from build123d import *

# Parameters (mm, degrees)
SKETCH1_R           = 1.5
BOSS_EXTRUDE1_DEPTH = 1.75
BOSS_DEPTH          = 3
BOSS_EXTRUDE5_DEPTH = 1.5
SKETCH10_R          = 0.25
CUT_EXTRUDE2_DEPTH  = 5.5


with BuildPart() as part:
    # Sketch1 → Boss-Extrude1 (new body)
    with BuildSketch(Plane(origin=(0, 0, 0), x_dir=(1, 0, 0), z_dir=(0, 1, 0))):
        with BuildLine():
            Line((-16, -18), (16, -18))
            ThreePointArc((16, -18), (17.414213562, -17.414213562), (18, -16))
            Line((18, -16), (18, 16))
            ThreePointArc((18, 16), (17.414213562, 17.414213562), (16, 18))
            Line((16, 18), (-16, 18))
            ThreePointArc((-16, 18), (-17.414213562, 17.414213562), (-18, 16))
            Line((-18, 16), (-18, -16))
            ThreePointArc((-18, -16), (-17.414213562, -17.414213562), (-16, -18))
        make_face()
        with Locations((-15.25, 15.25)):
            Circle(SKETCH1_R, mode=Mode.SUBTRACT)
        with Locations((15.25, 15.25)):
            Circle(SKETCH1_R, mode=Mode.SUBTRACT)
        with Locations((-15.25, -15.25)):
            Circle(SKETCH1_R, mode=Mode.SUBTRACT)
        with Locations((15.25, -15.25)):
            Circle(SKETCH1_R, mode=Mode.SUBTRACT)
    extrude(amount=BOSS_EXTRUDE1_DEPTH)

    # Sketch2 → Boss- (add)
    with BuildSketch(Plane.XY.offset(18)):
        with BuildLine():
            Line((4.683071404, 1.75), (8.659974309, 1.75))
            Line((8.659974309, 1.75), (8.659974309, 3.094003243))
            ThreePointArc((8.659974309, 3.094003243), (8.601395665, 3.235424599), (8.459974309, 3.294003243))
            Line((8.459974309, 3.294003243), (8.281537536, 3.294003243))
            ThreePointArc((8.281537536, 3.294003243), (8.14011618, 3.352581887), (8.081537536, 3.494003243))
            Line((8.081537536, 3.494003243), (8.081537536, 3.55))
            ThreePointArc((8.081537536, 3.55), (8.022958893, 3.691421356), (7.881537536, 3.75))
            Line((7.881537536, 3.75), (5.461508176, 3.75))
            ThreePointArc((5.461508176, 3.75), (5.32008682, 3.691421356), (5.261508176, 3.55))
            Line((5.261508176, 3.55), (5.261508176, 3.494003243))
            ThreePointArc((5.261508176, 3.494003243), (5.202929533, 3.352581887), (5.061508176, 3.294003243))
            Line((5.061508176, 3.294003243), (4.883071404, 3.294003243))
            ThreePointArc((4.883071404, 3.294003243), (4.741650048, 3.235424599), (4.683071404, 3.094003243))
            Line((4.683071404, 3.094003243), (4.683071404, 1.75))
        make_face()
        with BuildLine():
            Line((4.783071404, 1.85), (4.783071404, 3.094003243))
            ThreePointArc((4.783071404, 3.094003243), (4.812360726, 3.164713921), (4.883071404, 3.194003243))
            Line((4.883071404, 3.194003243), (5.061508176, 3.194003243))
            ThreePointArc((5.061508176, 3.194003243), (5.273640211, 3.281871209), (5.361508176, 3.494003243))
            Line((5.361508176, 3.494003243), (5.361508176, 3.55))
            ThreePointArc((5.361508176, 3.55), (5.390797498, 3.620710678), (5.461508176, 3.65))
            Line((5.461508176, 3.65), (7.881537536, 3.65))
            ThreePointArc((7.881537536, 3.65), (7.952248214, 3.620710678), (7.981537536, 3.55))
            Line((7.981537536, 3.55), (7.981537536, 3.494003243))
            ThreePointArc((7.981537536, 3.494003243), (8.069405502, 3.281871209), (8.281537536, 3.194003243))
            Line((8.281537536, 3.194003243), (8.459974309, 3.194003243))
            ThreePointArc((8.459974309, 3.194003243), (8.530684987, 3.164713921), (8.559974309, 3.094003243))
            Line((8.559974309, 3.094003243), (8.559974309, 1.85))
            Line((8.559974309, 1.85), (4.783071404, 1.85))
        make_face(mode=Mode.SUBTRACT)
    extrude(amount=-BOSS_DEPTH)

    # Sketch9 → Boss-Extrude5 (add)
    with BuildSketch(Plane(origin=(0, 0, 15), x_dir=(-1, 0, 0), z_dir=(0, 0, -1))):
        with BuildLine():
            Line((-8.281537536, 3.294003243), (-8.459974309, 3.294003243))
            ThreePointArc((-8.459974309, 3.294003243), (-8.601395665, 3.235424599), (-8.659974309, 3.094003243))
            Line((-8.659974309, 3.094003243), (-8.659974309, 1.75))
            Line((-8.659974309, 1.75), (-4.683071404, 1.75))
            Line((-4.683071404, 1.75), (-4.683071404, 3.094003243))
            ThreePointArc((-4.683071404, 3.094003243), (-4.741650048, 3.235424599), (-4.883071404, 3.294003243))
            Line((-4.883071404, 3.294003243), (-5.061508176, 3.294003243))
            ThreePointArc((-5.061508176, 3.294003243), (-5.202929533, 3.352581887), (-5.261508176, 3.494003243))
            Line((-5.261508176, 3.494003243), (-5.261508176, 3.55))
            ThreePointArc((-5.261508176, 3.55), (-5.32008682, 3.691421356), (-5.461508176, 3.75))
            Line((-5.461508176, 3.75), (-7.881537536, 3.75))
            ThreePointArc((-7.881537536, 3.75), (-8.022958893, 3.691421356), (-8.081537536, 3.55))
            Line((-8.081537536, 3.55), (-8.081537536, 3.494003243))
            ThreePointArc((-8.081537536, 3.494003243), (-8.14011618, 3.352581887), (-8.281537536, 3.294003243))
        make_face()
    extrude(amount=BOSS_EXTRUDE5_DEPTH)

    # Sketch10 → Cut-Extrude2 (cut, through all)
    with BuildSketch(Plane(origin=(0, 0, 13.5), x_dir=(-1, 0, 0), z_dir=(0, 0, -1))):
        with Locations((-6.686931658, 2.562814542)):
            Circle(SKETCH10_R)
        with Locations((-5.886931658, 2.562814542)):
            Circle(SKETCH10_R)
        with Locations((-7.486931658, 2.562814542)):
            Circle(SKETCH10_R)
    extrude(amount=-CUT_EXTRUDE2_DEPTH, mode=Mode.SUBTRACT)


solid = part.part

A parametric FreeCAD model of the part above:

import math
import FreeCAD as App
import Part
import Sketcher
from FreeCAD import Vector
Q = App.Units.Quantity

doc = App.newDocument("Part")
body = doc.addObject("PartDesign::Body", "Body")

# Sketch on XZ plane
sketch1 = body.newObject("Sketcher::SketchObject", "Sketch")
sketch1.AttachmentSupport = (doc.getObject("XZ_Plane"), [""])
sketch1.MapMode = "FlatFace"
sketch1.addGeometry([
    Part.LineSegment(Vector(-16, 18, 0), Vector(16, 18, 0)),  # 0
    Part.ArcOfCircle(Part.Circle(Vector(16, 16, 0), Vector(0, 0, 1), 2), math.radians(0), math.radians(90)),  # 1
    Part.LineSegment(Vector(18, 16, 0), Vector(18, -16, 0)),  # 2
    Part.ArcOfCircle(Part.Circle(Vector(16, -16, 0), Vector(0, 0, 1), 2), math.radians(-90), math.radians(0)),  # 3
    Part.LineSegment(Vector(16, -18, 0), Vector(-16, -18, 0)),  # 4
    Part.ArcOfCircle(Part.Circle(Vector(-16, -16, 0), Vector(0, 0, 1), 2), math.radians(-180), math.radians(-90)),  # 5
    Part.LineSegment(Vector(-18, -16, 0), Vector(-18, 16, 0)),  # 6
    Part.ArcOfCircle(Part.Circle(Vector(-16, 16, 0), Vector(0, 0, 1), 2), math.radians(90), math.radians(180)),  # 7
    Part.Circle(Vector(-15.25, 15.25, 0), Vector(0, 0, 1), 1.5),  # 8
    Part.Circle(Vector(15.25, 15.25, 0), Vector(0, 0, 1), 1.5),  # 9
    Part.Circle(Vector(-15.25, -15.25, 0), Vector(0, 0, 1), 1.5),  # 10
    Part.Circle(Vector(15.25, -15.25, 0), Vector(0, 0, 1), 1.5),  # 11
], False)
sketch1.addConstraint([
    Sketcher.Constraint("Tangent", 0, 2, 1, 2),
    Sketcher.Constraint("Tangent", 1, 1, 2, 1),
    Sketcher.Constraint("Tangent", 2, 2, 3, 2),
    Sketcher.Constraint("Tangent", 3, 1, 4, 1),
    Sketcher.Constraint("Tangent", 4, 2, 5, 2),
    Sketcher.Constraint("Tangent", 5, 1, 6, 1),
    Sketcher.Constraint("Tangent", 6, 2, 7, 2),
    Sketcher.Constraint("Tangent", 7, 1, 0, 1),
    Sketcher.Constraint("Horizontal", 0),
    Sketcher.Constraint("Vertical", 2),
    Sketcher.Constraint("Horizontal", 4),
    Sketcher.Constraint("Vertical", 6),
    Sketcher.Constraint("Equal", 1, 3),
    Sketcher.Constraint("Equal", 3, 5),
    Sketcher.Constraint("Equal", 5, 7),
    Sketcher.Constraint("Equal", 8, 9),
    Sketcher.Constraint("Equal", 9, 10),
    Sketcher.Constraint("Equal", 10, 11),
    Sketcher.Constraint("Symmetric", 1, 3, 5, 3, -1, 1),
    Sketcher.Constraint("Symmetric", 9, 3, 10, 3, -1, 1),
    Sketcher.Constraint("Symmetric", 8, 3, 11, 3, -1, 1),
    Sketcher.Constraint("Symmetric", 8, 3, 9, 3, -2),
    Sketcher.Constraint("Equal", 4, 2),
    Sketcher.Constraint("Diameter", 8, Q("3 mm")),
    Sketcher.Constraint("Radius", 1, Q("2 mm")),
    Sketcher.Constraint("DistanceX", 0, 1, 0, 2, Q("32 mm")),
    Sketcher.Constraint("DistanceX", 8, 3, 9, 3, Q("30.5 mm")),
    Sketcher.Constraint("DistanceY", 10, 3, 8, 3, Q("30.5 mm")),
])
pad1 = body.newObject("PartDesign::Pad", "Pad")
pad1.Profile = sketch1
pad1.Length = 1.75
pad1.Reversed = True

# Sketch on XY plane
sketch2 = body.newObject("Sketcher::SketchObject", "Sketch001")
sketch2.AttachmentSupport = (doc.getObject("XY_Plane"), [""])
sketch2.MapMode = "FlatFace"
sketch2.AttachmentOffset = App.Placement(Vector(0, 0, 18), App.Rotation())
sketch2.addGeometry([
    Part.LineSegment(Vector(4.683071, 1.75, 0), Vector(8.659974, 1.75, 0)),  # 0
    Part.LineSegment(Vector(8.659974, 1.75, 0), Vector(8.659974, 3.094003, 0)),  # 1
    Part.ArcOfCircle(Part.Circle(Vector(8.459974, 3.094003, 0), Vector(0, 0, 1), 0.2), math.radians(0), math.radians(90)),  # 2
    Part.LineSegment(Vector(8.459974, 3.294003, 0), Vector(8.281538, 3.294003, 0)),  # 3
    Part.ArcOfCircle(Part.Circle(Vector(8.281538, 3.494003, 0), Vector(0, 0, 1), 0.2), math.radians(-180), math.radians(-90)),  # 4
    Part.LineSegment(Vector(8.081538, 3.494003, 0), Vector(8.081538, 3.55, 0)),  # 5
    Part.ArcOfCircle(Part.Circle(Vector(7.881538, 3.55, 0), Vector(0, 0, 1), 0.2), math.radians(0), math.radians(90)),  # 6
    Part.LineSegment(Vector(7.881538, 3.75, 0), Vector(5.461508, 3.75, 0)),  # 7
    Part.ArcOfCircle(Part.Circle(Vector(5.461508, 3.55, 0), Vector(0, 0, 1), 0.2), math.radians(90), math.radians(180)),  # 8
    Part.LineSegment(Vector(5.261508, 3.55, 0), Vector(5.261508, 3.494003, 0)),  # 9
    Part.ArcOfCircle(Part.Circle(Vector(5.061508, 3.494003, 0), Vector(0, 0, 1), 0.2), math.radians(-90), math.radians(0)),  # 10
    Part.LineSegment(Vector(5.061508, 3.294003, 0), Vector(4.883071, 3.294003, 0)),  # 11
    Part.ArcOfCircle(Part.Circle(Vector(4.883071, 3.094003, 0), Vector(0, 0, 1), 0.2), math.radians(90), math.radians(180)),  # 12
    Part.LineSegment(Vector(4.683071, 3.094003, 0), Vector(4.683071, 1.75, 0)),  # 13
    Part.LineSegment(Vector(8.559974, 1.85, 0), Vector(4.783071, 1.85, 0)),  # 14
    Part.LineSegment(Vector(4.783071, 1.85, 0), Vector(4.783071, 3.094003, 0)),  # 15
    Part.ArcOfCircle(Part.Circle(Vector(4.883071, 3.094003, 0), Vector(0, 0, 1), 0.1), math.radians(90), math.radians(180)),  # 16
    Part.LineSegment(Vector(4.883071, 3.194003, 0), Vector(5.061508, 3.194003, 0)),  # 17
    Part.ArcOfCircle(Part.Circle(Vector(5.061508, 3.494003, 0), Vector(0, 0, 1), 0.3), math.radians(-90), math.radians(0)),  # 18
    Part.LineSegment(Vector(5.361508, 3.494003, 0), Vector(5.361508, 3.55, 0)),  # 19
    Part.ArcOfCircle(Part.Circle(Vector(5.461508, 3.55, 0), Vector(0, 0, 1), 0.1), math.radians(90), math.radians(180)),  # 20
    Part.LineSegment(Vector(5.461508, 3.65, 0), Vector(7.881538, 3.65, 0)),  # 21
    Part.ArcOfCircle(Part.Circle(Vector(7.881538, 3.55, 0), Vector(0, 0, 1), 0.1), math.radians(0), math.radians(90)),  # 22
    Part.LineSegment(Vector(7.981538, 3.55, 0), Vector(7.981538, 3.494003, 0)),  # 23
    Part.ArcOfCircle(Part.Circle(Vector(8.281538, 3.494003, 0), Vector(0, 0, 1), 0.3), math.radians(-180), math.radians(-90)),  # 24
    Part.LineSegment(Vector(8.281538, 3.194003, 0), Vector(8.459974, 3.194003, 0)),  # 25
    Part.ArcOfCircle(Part.Circle(Vector(8.459974, 3.094003, 0), Vector(0, 0, 1), 0.1), math.radians(0), math.radians(90)),  # 26
    Part.LineSegment(Vector(8.559974, 3.094003, 0), Vector(8.559974, 1.85, 0)),  # 27
], False)
sketch2.addConstraint([
    Sketcher.Constraint("Coincident", 0, 2, 1, 1),
    Sketcher.Constraint("Tangent", 1, 2, 2, 1),
    Sketcher.Constraint("Tangent", 2, 2, 3, 1),
    Sketcher.Constraint("Tangent", 3, 2, 4, 2),
    Sketcher.Constraint("Tangent", 4, 1, 5, 1),
    Sketcher.Constraint("Tangent", 5, 2, 6, 1),
    Sketcher.Constraint("Tangent", 6, 2, 7, 1),
    Sketcher.Constraint("Tangent", 7, 2, 8, 1),
    Sketcher.Constraint("Tangent", 8, 2, 9, 1),
    Sketcher.Constraint("Tangent", 9, 2, 10, 2),
    Sketcher.Constraint("Tangent", 10, 1, 11, 1),
    Sketcher.Constraint("Tangent", 11, 2, 12, 1),
    Sketcher.Constraint("Tangent", 12, 2, 13, 1),
    Sketcher.Constraint("Coincident", 13, 2, 0, 1),
    Sketcher.Constraint("Coincident", 14, 2, 15, 1),
    Sketcher.Constraint("Tangent", 15, 2, 16, 2),
    Sketcher.Constraint("Tangent", 16, 1, 17, 1),
    Sketcher.Constraint("Tangent", 17, 2, 18, 1),
    Sketcher.Constraint("Tangent", 18, 2, 19, 1),
    Sketcher.Constraint("Tangent", 19, 2, 20, 2),
    Sketcher.Constraint("Tangent", 20, 1, 21, 1),
    Sketcher.Constraint("Tangent", 21, 2, 22, 2),
    Sketcher.Constraint("Tangent", 22, 1, 23, 1),
    Sketcher.Constraint("Tangent", 23, 2, 24, 1),
    Sketcher.Constraint("Tangent", 24, 2, 25, 1),
    Sketcher.Constraint("Tangent", 25, 2, 26, 2),
    Sketcher.Constraint("Tangent", 26, 1, 27, 1),
    Sketcher.Constraint("Coincident", 27, 2, 14, 1),
    Sketcher.Constraint("Horizontal", 0),
    Sketcher.Constraint("Vertical", 1),
    Sketcher.Constraint("Horizontal", 3),
    Sketcher.Constraint("Vertical", 5),
    Sketcher.Constraint("Horizontal", 7),
    Sketcher.Constraint("Vertical", 9),
    Sketcher.Constraint("Horizontal", 11),
    Sketcher.Constraint("Vertical", 13),
    Sketcher.Constraint("Horizontal", 14),
    Sketcher.Constraint("Vertical", 15),
    Sketcher.Constraint("Horizontal", 17),
    Sketcher.Constraint("Vertical", 19),
    Sketcher.Constraint("Horizontal", 21),
    Sketcher.Constraint("Vertical", 23),
    Sketcher.Constraint("Horizontal", 25),
    Sketcher.Constraint("Vertical", 27),
    Sketcher.Constraint("Coincident", 16, 3, 12, 3),
    Sketcher.Constraint("Coincident", 18, 3, 10, 3),
    Sketcher.Constraint("Coincident", 20, 3, 8, 3),
    Sketcher.Constraint("Coincident", 22, 3, 6, 3),
    Sketcher.Constraint("Coincident", 24, 3, 4, 3),
    Sketcher.Constraint("Coincident", 26, 3, 2, 3),
    Sketcher.Constraint("Equal", 2, 4),
    Sketcher.Constraint("Equal", 4, 6),
    Sketcher.Constraint("Equal", 6, 8),
    Sketcher.Constraint("Equal", 8, 10),
    Sketcher.Constraint("Equal", 10, 12),
    Sketcher.Constraint("Horizontal", 4, 3, 10, 3),
    Sketcher.Constraint("Equal", 3, 11),
    Sketcher.Constraint("Radius", 2, Q("0.2 mm")),
    Sketcher.Constraint("Radius", 16, Q("0.1 mm")),
    Sketcher.Constraint("DistanceY", 0, 2, 22, 3, Q("1.8 mm")),
    Sketcher.Constraint("DistanceY", 13, 2, 14, 2, Q("0.1 mm")),
    Sketcher.Constraint("DistanceY", -1, 1, 6, 3, Q("3.55 mm")),
    Sketcher.Constraint("DistanceX", 7, 2, 7, 1, Q("2.420029 mm")),
    Sketcher.Constraint("DistanceX", 0, 1, 0, 2, Q("3.976903 mm")),
    Sketcher.Constraint("DistanceY", 1, 1, 1, 2, Q("1.344003 mm")),
    Sketcher.Constraint("DistanceX", -1, 1, 8, 3, Q("5.461508 mm")),
])
pad2 = body.newObject("PartDesign::Pad", "Pad001")
pad2.Profile = sketch2
pad2.Length = 3
pad2.Reversed = True

# Sketch on XY plane
sketch3 = body.newObject("Sketcher::SketchObject", "Sketch002")
sketch3.AttachmentSupport = (doc.getObject("XY_Plane"), [""])
sketch3.MapMode = "FlatFace"
sketch3.AttachmentOffset = App.Placement(Vector(0, 0, 15), App.Rotation())
sketch3.addGeometry([
    Part.LineSegment(Vector(8.281538, 3.294003, 0), Vector(8.459974, 3.294003, 0)),  # 0
    Part.ArcOfCircle(Part.Circle(Vector(8.459974, 3.094003, 0), Vector(0, 0, 1), 0.2), math.radians(0), math.radians(90)),  # 1
    Part.LineSegment(Vector(8.659974, 3.094003, 0), Vector(8.659974, 1.75, 0)),  # 2
    Part.LineSegment(Vector(8.659974, 1.75, 0), Vector(4.683071, 1.75, 0)),  # 3
    Part.LineSegment(Vector(4.683071, 1.75, 0), Vector(4.683071, 3.094003, 0)),  # 4
    Part.ArcOfCircle(Part.Circle(Vector(4.883071, 3.094003, 0), Vector(0, 0, 1), 0.2), math.radians(90), math.radians(180)),  # 5
    Part.LineSegment(Vector(4.883071, 3.294003, 0), Vector(5.061508, 3.294003, 0)),  # 6
    Part.ArcOfCircle(Part.Circle(Vector(5.061508, 3.494003, 0), Vector(0, 0, 1), 0.2), math.radians(-90), math.radians(0)),  # 7
    Part.LineSegment(Vector(5.261508, 3.494003, 0), Vector(5.261508, 3.55, 0)),  # 8
    Part.ArcOfCircle(Part.Circle(Vector(5.461508, 3.55, 0), Vector(0, 0, 1), 0.2), math.radians(90), math.radians(180)),  # 9
    Part.LineSegment(Vector(5.461508, 3.75, 0), Vector(7.881538, 3.75, 0)),  # 10
    Part.ArcOfCircle(Part.Circle(Vector(7.881538, 3.55, 0), Vector(0, 0, 1), 0.2), math.radians(0), math.radians(90)),  # 11
    Part.LineSegment(Vector(8.081538, 3.55, 0), Vector(8.081538, 3.494003, 0)),  # 12
    Part.ArcOfCircle(Part.Circle(Vector(8.281538, 3.494003, 0), Vector(0, 0, 1), 0.2), math.radians(-180), math.radians(-90)),  # 13
], False)
sketch3.addConstraint([
    Sketcher.Constraint("Tangent", 0, 2, 1, 2),
    Sketcher.Constraint("Tangent", 1, 1, 2, 1),
    Sketcher.Constraint("Coincident", 2, 2, 3, 1),
    Sketcher.Constraint("Coincident", 3, 2, 4, 1),
    Sketcher.Constraint("Tangent", 4, 2, 5, 2),
    Sketcher.Constraint("Tangent", 5, 1, 6, 1),
    Sketcher.Constraint("Tangent", 6, 2, 7, 1),
    Sketcher.Constraint("Tangent", 7, 2, 8, 1),
    Sketcher.Constraint("Tangent", 8, 2, 9, 2),
    Sketcher.Constraint("Tangent", 9, 1, 10, 1),
    Sketcher.Constraint("Tangent", 10, 2, 11, 2),
    Sketcher.Constraint("Tangent", 11, 1, 12, 1),
    Sketcher.Constraint("Tangent", 12, 2, 13, 1),
    Sketcher.Constraint("Tangent", 13, 2, 0, 1),
    Sketcher.Constraint("Horizontal", 0),
    Sketcher.Constraint("Vertical", 2),
    Sketcher.Constraint("Horizontal", 3),
    Sketcher.Constraint("Vertical", 4),
    Sketcher.Constraint("Horizontal", 6),
    Sketcher.Constraint("Vertical", 8),
    Sketcher.Constraint("Horizontal", 10),
    Sketcher.Constraint("Vertical", 12),
    Sketcher.Constraint("Equal", 1, 5),
    Sketcher.Constraint("Equal", 5, 7),
    Sketcher.Constraint("Equal", 7, 9),
    Sketcher.Constraint("Equal", 9, 11),
    Sketcher.Constraint("Equal", 11, 13),
    Sketcher.Constraint("Horizontal", 1, 3, 5, 3),
    Sketcher.Constraint("Equal", 0, 6),
    Sketcher.Constraint("Radius", 1, Q("0.2 mm")),
    Sketcher.Constraint("DistanceY", 2, 2, 11, 3, Q("1.8 mm")),
    Sketcher.Constraint("DistanceY", -1, 1, 9, 3, Q("3.55 mm")),
    Sketcher.Constraint("DistanceX", 10, 1, 10, 2, Q("2.420029 mm")),
    Sketcher.Constraint("DistanceX", 0, 1, 0, 2, Q("0.178437 mm")),
    Sketcher.Constraint("DistanceY", 2, 2, 2, 1, Q("1.344003 mm")),
    Sketcher.Constraint("DistanceX", -1, 1, 5, 3, Q("4.883071 mm")),
])
pad3 = body.newObject("PartDesign::Pad", "Pad002")
pad3.Profile = sketch3
pad3.Length = 1.5
pad3.Reversed = True

# Sketch on XY plane
sketch4 = body.newObject("Sketcher::SketchObject", "Sketch003")
sketch4.AttachmentSupport = (doc.getObject("XY_Plane"), [""])
sketch4.MapMode = "FlatFace"
sketch4.AttachmentOffset = App.Placement(Vector(0, 0, 13.5), App.Rotation())
sketch4.addGeometry([
    Part.Circle(Vector(6.686932, 2.562815, 0), Vector(0, 0, 1), 0.25),
    Part.Circle(Vector(5.886932, 2.562815, 0), Vector(0, 0, 1), 0.25),
    Part.Circle(Vector(7.486932, 2.562815, 0), Vector(0, 0, 1), 0.25),
], False)
sketch4.addConstraint([
    Sketcher.Constraint("Equal", 0, 1),
    Sketcher.Constraint("Equal", 1, 2),
    Sketcher.Constraint("Horizontal", 0, 3, 1, 3),
    Sketcher.Constraint("Horizontal", 1, 3, 2, 3),
    Sketcher.Constraint("Diameter", 0, Q("0.5 mm")),
    Sketcher.Constraint("DistanceX", 1, 3, 0, 3, Q("0.8 mm")),
    Sketcher.Constraint("DistanceX", 0, 3, 2, 3, Q("0.8 mm")),
    Sketcher.Constraint("DistanceX", -1, 1, 0, 3, Q("6.686932 mm")),
    Sketcher.Constraint("DistanceY", -1, 1, 0, 3, Q("2.562815 mm")),
])
pocket1 = body.newObject("PartDesign::Pocket", "Pocket")
pocket1.Profile = sketch4
pocket1.Type = "ThroughAll"
pocket1.Reversed = True

doc.recompute()
